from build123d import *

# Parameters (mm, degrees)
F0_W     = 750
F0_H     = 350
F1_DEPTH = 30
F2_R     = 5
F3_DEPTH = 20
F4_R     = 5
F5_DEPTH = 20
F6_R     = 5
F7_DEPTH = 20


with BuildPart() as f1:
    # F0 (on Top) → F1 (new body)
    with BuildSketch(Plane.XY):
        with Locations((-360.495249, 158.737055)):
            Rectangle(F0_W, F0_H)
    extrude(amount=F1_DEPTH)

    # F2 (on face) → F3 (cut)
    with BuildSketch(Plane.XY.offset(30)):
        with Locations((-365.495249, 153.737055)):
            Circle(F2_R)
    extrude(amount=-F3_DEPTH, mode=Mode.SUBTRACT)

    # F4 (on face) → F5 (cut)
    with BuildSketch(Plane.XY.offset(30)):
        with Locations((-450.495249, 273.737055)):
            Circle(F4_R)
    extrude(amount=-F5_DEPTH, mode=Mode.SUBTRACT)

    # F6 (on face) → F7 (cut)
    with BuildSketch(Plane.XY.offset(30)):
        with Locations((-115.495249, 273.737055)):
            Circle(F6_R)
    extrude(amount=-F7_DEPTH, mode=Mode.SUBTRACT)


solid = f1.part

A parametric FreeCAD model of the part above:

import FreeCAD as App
import Part
import Sketcher

V = App.Vector
Q = App.Units.Quantity

doc = App.newDocument("Part")
body = doc.addObject("PartDesign::Body", "Body")

sketch1 = body.newObject("Sketcher::SketchObject", "Sketch")
sketch1.AttachmentSupport = (doc.getObject("XY_Plane"), [""])
sketch1.MapMode = "FlatFace"
sketch1.addGeometry(Part.LineSegment(V(-735, 334, 0), V(-735, -16, 0)), False)
sketch1.addGeometry(Part.LineSegment(V(-735, -16, 0), V(15, -16, 0)), False)
sketch1.addGeometry(Part.LineSegment(V(15, -16, 0), V(15, 334, 0)), False)
sketch1.addGeometry(Part.LineSegment(V(15, 334, 0), V(-735, 334, 0)), False)
sketch1.addConstraint(Sketcher.Constraint("Coincident", 0, 2, 1, 1))
sketch1.addConstraint(Sketcher.Constraint("Coincident", 1, 2, 2, 1))
sketch1.addConstraint(Sketcher.Constraint("Coincident", 2, 2, 3, 1))
sketch1.addConstraint(Sketcher.Constraint("Coincident", 3, 2, 0, 1))
sketch1.addConstraint(Sketcher.Constraint("Vertical", 0))
sketch1.addConstraint(Sketcher.Constraint("Horizontal", 1))
sketch1.addConstraint(Sketcher.Constraint("Vertical", 2))
sketch1.addConstraint(Sketcher.Constraint("Horizontal", 3))
sketch1.addConstraint(Sketcher.Constraint("DistanceX", 1, 1, 1, 2, Q("750 mm")))
sketch1.addConstraint(Sketcher.Constraint("DistanceY", 0, 2, 0, 1, Q("350 mm")))
sketch1.addConstraint(Sketcher.Constraint("DistanceX", 0, 2, -1, 1, Q("735.495249 mm")))
sketch1.addConstraint(Sketcher.Constraint("DistanceY", 0, 2, -1, 1, Q("16.262945 mm")))
pad1 = body.newObject("PartDesign::Pad", "Pad")
pad1.Profile = sketch1
pad1.Length = 30

sketch2 = body.newObject("Sketcher::SketchObject", "Sketch001")
sketch2.AttachmentSupport = (doc.getObject("XY_Plane"), [""])
sketch2.MapMode = "FlatFace"
sketch2.AttachmentOffset = App.Placement(V(0, 0, 30), App.Rotation())
sketch2.addGeometry(Part.Circle(V(-365, 154, 0), V(0, 0, 1), 5), False)
sketch2.addConstraint(Sketcher.Constraint("Diameter", 0, Q("10 mm")))
sketch2.addConstraint(Sketcher.Constraint("DistanceX", 0, 3, -1, 1, Q("365.495249 mm")))
sketch2.addConstraint(Sketcher.Constraint("DistanceY", -1, 1, 0, 3, Q("153.737055 mm")))
pocket1 = body.newObject("PartDesign::Pocket", "Pocket")
pocket1.Profile = sketch2
pocket1.Length = 20

sketch3 = body.newObject("Sketcher::SketchObject", "Sketch002")
sketch3.AttachmentSupport = (doc.getObject("XY_Plane"), [""])
sketch3.MapMode = "FlatFace"
sketch3.AttachmentOffset = App.Placement(V(0, 0, 30), App.Rotation())
sketch3.addGeometry(Part.Circle(V(-450, 274, 0), V(0, 0, 1), 5), False)
sketch3.addConstraint(Sketcher.Constraint("Diameter", 0, Q("10 mm")))
sketch3.addConstraint(Sketcher.Constraint("DistanceX", 0, 3, -1, 1, Q("450.495249 mm")))
sketch3.addConstraint(Sketcher.Constraint("DistanceY", -1, 1, 0, 3, Q("273.737055 mm")))
pocket2 = body.newObject("PartDesign::Pocket", "Pocket001")
pocket2.Profile = sketch3
pocket2.Length = 20

sketch4 = body.newObject("Sketcher::SketchObject", "Sketch003")
sketch4.AttachmentSupport = (doc.getObject("XY_Plane"), [""])
sketch4.MapMode = "FlatFace"
sketch4.AttachmentOffset = App.Placement(V(0, 0, 30), App.Rotation())
sketch4.addGeometry(Part.Circle(V(-115, 274, 0), V(0, 0, 1), 5), False)
sketch4.addConstraint(Sketcher.Constraint("Diameter", 0, Q("10 mm")))
sketch4.addConstraint(Sketcher.Constraint("DistanceX", 0, 3, -1, 1, Q("115.495249 mm")))
sketch4.addConstraint(Sketcher.Constraint("DistanceY", -1, 1, 0, 3, Q("273.737055 mm")))
pocket3 = body.newObject("PartDesign::Pocket", "Pocket002")
pocket3.Profile = sketch4
pocket3.Length = 20

doc.recompute()
